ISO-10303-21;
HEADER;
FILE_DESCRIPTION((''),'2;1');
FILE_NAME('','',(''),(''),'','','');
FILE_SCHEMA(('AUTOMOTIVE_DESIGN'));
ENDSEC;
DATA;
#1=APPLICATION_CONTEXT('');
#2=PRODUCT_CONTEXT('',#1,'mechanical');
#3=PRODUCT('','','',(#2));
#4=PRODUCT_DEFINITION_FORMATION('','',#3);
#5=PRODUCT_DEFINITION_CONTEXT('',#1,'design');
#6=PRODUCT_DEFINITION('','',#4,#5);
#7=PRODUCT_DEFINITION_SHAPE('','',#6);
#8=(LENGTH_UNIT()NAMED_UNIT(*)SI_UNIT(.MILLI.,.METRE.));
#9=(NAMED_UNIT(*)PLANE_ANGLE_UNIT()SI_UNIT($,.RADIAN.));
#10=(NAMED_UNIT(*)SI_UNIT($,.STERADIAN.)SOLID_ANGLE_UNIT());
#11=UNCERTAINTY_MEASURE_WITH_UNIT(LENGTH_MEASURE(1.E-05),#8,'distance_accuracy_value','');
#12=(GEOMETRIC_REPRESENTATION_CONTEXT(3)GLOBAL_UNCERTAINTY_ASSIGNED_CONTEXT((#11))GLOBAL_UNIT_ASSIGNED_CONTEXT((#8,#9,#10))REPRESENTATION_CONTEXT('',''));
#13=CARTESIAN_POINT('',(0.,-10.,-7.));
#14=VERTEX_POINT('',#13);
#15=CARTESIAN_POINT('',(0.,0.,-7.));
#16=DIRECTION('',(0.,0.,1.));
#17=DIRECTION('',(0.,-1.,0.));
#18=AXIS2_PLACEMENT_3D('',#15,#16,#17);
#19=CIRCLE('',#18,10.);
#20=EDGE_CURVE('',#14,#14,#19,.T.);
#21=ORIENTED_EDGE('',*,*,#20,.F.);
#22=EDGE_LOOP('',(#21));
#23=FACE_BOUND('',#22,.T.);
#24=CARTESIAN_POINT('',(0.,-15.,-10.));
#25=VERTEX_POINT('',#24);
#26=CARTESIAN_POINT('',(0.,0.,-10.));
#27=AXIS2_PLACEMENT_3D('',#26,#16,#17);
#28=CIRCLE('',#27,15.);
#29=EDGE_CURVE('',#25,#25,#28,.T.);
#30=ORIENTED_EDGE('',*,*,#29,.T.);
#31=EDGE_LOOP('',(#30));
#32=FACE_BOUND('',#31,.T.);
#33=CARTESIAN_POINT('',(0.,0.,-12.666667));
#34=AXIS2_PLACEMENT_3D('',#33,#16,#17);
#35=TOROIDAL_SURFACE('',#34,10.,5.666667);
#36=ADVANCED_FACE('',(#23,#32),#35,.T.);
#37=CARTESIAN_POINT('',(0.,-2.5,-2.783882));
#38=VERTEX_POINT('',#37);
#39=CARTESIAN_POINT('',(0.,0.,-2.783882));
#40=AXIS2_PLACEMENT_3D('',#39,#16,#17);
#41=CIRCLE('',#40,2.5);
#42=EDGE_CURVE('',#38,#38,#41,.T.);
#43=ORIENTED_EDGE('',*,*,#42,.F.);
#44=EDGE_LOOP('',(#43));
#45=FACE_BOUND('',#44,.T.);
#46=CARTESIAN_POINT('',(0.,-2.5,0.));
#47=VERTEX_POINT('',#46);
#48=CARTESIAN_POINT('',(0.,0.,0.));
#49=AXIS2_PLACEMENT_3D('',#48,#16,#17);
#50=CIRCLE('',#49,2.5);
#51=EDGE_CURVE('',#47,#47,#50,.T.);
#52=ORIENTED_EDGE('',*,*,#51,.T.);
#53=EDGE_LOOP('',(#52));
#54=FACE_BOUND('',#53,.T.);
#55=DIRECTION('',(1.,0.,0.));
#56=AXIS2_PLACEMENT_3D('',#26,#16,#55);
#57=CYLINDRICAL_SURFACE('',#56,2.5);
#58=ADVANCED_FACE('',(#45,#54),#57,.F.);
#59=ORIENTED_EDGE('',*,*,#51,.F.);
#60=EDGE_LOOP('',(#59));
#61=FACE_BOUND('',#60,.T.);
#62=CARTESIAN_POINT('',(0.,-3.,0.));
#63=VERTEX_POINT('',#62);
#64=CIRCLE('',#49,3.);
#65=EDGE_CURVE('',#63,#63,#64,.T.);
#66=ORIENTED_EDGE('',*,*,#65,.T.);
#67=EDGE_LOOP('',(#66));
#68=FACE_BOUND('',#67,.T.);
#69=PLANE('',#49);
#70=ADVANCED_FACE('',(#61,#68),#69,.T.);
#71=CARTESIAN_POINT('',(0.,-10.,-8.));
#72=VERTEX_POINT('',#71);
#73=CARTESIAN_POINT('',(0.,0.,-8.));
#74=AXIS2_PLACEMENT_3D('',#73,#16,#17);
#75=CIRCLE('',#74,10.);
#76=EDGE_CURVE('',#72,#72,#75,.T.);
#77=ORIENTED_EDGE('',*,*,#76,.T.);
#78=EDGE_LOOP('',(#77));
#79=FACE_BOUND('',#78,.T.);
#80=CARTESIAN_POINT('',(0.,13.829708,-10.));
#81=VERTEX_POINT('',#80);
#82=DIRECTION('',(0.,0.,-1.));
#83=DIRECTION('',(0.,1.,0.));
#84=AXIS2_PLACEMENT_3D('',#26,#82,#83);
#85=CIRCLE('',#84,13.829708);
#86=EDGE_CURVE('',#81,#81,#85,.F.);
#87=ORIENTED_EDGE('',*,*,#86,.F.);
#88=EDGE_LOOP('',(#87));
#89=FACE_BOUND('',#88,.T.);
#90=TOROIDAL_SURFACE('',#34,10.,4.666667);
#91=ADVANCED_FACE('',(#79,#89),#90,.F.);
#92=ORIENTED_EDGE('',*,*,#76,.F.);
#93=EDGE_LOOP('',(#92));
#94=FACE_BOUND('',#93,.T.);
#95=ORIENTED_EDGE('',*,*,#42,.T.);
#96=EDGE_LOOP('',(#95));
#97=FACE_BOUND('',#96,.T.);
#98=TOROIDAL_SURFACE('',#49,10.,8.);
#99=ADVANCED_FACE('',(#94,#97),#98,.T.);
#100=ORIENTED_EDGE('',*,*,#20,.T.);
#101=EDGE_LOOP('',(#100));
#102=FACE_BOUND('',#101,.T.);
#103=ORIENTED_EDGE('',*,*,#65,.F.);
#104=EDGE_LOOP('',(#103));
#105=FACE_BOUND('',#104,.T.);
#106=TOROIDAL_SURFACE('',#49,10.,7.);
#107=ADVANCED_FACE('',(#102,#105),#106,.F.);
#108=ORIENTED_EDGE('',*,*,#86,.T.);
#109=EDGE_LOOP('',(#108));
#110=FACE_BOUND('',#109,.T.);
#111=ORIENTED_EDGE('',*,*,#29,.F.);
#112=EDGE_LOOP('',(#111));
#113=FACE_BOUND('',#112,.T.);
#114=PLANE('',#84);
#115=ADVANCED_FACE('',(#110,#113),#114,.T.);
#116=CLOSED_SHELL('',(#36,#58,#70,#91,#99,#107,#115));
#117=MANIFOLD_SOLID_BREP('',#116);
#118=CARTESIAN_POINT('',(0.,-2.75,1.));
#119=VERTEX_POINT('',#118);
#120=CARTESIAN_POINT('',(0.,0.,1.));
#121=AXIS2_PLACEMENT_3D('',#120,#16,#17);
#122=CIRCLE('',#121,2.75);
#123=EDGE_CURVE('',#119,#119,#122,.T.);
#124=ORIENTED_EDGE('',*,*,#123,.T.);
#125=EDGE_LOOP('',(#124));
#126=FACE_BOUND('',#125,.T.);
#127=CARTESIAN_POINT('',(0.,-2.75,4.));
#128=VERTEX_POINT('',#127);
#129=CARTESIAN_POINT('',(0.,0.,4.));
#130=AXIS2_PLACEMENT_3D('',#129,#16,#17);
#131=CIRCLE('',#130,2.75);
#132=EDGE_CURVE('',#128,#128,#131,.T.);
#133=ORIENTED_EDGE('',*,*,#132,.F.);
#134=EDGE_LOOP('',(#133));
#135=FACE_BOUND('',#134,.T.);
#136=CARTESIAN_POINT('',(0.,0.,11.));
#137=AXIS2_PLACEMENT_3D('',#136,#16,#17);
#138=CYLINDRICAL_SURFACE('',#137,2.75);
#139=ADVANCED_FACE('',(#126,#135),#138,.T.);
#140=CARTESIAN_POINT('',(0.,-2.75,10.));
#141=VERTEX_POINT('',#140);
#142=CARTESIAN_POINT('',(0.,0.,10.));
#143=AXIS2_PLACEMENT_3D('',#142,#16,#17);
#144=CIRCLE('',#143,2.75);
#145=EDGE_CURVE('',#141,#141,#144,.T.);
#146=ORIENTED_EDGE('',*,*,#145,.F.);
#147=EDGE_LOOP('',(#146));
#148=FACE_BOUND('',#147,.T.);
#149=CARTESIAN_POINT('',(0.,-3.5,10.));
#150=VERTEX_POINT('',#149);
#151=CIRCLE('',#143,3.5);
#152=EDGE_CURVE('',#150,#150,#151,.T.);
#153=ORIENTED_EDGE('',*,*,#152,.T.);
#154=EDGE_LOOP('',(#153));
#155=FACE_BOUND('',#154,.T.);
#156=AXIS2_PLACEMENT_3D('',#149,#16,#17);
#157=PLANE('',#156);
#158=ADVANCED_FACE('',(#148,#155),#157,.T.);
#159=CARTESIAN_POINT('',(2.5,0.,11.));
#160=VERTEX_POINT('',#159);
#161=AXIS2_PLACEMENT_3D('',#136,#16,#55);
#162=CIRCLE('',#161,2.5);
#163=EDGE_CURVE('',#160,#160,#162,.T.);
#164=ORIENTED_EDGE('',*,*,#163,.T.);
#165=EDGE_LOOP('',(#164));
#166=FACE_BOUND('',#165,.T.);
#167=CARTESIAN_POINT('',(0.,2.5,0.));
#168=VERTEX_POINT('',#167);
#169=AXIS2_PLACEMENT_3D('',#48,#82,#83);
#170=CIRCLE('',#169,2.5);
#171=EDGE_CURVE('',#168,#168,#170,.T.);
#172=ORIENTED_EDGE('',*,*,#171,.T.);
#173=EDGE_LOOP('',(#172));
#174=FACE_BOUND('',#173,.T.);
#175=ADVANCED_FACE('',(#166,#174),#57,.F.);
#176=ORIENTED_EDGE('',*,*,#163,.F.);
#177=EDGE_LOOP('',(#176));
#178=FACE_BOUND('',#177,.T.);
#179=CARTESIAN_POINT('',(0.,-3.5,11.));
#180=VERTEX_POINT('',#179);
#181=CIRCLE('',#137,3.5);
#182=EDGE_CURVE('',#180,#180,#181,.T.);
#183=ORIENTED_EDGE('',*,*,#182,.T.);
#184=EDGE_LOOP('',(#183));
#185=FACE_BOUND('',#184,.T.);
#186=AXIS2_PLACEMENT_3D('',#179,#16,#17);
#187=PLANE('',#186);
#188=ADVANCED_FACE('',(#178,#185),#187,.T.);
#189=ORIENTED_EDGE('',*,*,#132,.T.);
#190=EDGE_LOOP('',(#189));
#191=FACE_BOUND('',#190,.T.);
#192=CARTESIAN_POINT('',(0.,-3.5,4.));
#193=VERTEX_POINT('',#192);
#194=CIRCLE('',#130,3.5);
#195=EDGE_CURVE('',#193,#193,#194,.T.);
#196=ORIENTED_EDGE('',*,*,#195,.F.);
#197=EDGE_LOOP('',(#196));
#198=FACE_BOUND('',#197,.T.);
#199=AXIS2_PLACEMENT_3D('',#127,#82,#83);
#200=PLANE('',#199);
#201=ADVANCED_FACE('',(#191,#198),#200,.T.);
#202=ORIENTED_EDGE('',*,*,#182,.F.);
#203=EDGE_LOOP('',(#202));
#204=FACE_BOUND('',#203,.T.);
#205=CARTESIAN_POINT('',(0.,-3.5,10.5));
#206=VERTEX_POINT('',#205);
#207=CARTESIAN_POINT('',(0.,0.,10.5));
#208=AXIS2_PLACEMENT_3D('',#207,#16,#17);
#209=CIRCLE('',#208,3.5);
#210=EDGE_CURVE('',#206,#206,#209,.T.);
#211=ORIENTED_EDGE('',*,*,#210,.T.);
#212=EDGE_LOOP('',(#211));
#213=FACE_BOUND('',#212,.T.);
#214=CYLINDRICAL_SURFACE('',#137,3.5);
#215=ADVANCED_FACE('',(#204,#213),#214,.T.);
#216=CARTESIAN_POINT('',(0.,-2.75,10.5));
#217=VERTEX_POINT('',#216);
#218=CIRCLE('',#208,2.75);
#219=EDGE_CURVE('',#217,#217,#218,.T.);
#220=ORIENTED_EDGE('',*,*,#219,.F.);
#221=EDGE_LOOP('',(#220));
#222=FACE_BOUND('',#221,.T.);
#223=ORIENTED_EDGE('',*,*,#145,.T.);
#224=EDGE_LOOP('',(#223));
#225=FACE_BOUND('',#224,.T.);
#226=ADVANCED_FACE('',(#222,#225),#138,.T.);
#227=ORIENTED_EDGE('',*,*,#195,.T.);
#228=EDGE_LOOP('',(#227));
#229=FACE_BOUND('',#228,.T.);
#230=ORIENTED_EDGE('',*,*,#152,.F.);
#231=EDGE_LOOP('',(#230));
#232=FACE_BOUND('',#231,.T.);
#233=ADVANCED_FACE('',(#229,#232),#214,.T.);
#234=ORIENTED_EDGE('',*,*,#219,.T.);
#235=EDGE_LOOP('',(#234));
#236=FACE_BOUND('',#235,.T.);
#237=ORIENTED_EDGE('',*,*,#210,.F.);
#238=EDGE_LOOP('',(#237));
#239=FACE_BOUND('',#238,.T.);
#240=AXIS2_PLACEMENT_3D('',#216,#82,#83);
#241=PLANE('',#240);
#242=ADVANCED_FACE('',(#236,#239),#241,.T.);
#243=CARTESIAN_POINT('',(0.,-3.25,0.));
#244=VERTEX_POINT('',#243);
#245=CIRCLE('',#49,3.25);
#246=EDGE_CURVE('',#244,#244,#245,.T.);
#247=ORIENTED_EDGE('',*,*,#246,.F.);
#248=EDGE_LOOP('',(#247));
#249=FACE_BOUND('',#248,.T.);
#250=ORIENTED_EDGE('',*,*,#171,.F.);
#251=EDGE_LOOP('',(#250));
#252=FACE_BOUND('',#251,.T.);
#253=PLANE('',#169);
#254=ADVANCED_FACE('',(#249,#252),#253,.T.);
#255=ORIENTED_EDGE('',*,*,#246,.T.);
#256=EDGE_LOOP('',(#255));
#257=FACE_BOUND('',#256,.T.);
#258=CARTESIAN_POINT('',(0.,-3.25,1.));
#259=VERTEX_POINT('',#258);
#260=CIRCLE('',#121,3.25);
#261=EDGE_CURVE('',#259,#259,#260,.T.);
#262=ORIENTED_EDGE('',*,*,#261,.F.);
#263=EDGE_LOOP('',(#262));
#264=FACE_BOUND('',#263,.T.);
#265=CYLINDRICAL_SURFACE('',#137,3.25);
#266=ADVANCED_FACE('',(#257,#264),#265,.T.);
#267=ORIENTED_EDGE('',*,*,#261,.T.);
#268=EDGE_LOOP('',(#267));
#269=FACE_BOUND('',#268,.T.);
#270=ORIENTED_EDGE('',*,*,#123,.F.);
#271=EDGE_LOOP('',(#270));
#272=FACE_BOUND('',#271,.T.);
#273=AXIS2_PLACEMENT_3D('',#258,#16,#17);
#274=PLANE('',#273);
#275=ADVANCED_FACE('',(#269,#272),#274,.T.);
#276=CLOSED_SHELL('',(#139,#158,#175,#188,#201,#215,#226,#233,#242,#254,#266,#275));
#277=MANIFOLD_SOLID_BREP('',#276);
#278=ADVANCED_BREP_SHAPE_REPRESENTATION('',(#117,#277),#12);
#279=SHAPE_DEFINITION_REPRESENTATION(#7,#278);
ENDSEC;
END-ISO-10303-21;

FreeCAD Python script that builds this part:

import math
import FreeCAD as App
import Part
import Sketcher
Q = App.Units.Quantity


def faces_at(feature, points):
    """Names of the faces that lie closest to the given points."""
    faces = feature.Shape.Faces
    near = lambda p: min(range(len(faces)), key=lambda i: faces[i].distToShape(Part.Vertex(*p))[0])
    return sorted({f"Face{near(p) + 1}" for p in points})

doc = App.newDocument("Part")
body = doc.addObject("PartDesign::Body", "Body")

sketch1 = doc.addObject("Sketcher::SketchObject", "Sketch")
body.addObject(sketch1)
sketch1.AttachmentSupport = (doc.YZ_Plane, [""])
sketch1.MapMode = "FlatFace"
sketch1.addGeometry(Part.LineSegment(App.Vector(-15, -10, 0), App.Vector(0, -10, 0)), False)
sketch1.addGeometry(Part.LineSegment(App.Vector(0, -10, 0), App.Vector(0, 0, 0)), False)
sketch1.addGeometry(Part.LineSegment(App.Vector(0, 0, 0), App.Vector(-3, 0, 0)), False)
sketch1.addGeometry(Part.ArcOfCircle(Part.Circle(App.Vector(-10, 0, 0), App.Vector(0, 0, 1), 7), math.radians(-90), math.radians(0)), False)
sketch1.addGeometry(Part.ArcOfCircle(Part.Circle(App.Vector(-10, -12.7, 0), App.Vector(0, 0, 1), 5.7), math.radians(90), math.radians(152)), False)
sketch1.addConstraint(Sketcher.Constraint("Coincident", 0, 2, 1, 1))
sketch1.addConstraint(Sketcher.Constraint("Coincident", 1, 2, 2, 1))
sketch1.addConstraint(Sketcher.Constraint("Coincident", 2, 2, 3, 2))
sketch1.addConstraint(Sketcher.Constraint("Tangent", 3, 1, 4, 1))
sketch1.addConstraint(Sketcher.Constraint("Coincident", 4, 2, 0, 1))
sketch1.addConstraint(Sketcher.Constraint("Horizontal", 0))
sketch1.addConstraint(Sketcher.Constraint("Vertical", 1))
sketch1.addConstraint(Sketcher.Constraint("Horizontal", 2))
sketch1.addConstraint(Sketcher.Constraint("Coincident", 1, 2, -1, 1))
sketch1.addConstraint(Sketcher.Constraint("PointOnObject", 3, 3, -1))
sketch1.addConstraint(Sketcher.Constraint("Vertical", 3, 3, 4, 3))
sketch1.addConstraint(Sketcher.Constraint("Radius", 3, Q("7 mm")))
sketch1.addConstraint(Sketcher.Constraint("DistanceX", 0, 1, 0, 2, Q("15 mm")))
sketch1.addConstraint(Sketcher.Constraint("DistanceX", 2, 2, 2, 1, Q("3 mm")))
sketch1.addConstraint(Sketcher.Constraint("DistanceY", 1, 1, 1, 2, Q("10 mm")))
revolution = doc.addObject("PartDesign::Revolution", "Revolution")
body.addObject(revolution)
revolution.Profile = sketch1
revolution.ReferenceAxis = (sketch1, ["V_Axis"])
revolution.Angle = 360
doc.recompute()

thickness = doc.addObject("PartDesign::Thickness", "Thickness")
body.addObject(thickness)
thickness.Base = (revolution, faces_at(revolution, [(0, 0, -10)]))
thickness.Value = 1
thickness.Reversed = True
thickness.Join = "Intersection"
body2 = doc.addObject("PartDesign::Body", "Body001")

sketch2 = doc.addObject("Sketcher::SketchObject", "Sketch001")
body2.addObject(sketch2)
sketch2.AttachmentSupport = (doc.getObject("YZ_Plane001"), [""])
sketch2.MapMode = "FlatFace"
sketch2.addGeometry(Part.LineSegment(App.Vector(-3.2, 0, 0), App.Vector(0, 0, 0)), False)
sketch2.addGeometry(Part.LineSegment(App.Vector(0, 0, 0), App.Vector(0, 11, 0)), False)
sketch2.addGeometry(Part.LineSegment(App.Vector(0, 11, 0), App.Vector(-3.5, 11, 0)), False)
sketch2.addGeometry(Part.LineSegment(App.Vector(-3.5, 11, 0), App.Vector(-3.5, 10.5, 0)), False)
sketch2.addGeometry(Part.LineSegment(App.Vector(-3.5, 10.5, 0), App.Vector(-2.8, 10.5, 0)), False)
sketch2.addGeometry(Part.LineSegment(App.Vector(-2.8, 10.5, 0), App.Vector(-2.8, 10, 0)), False)
sketch2.addGeometry(Part.LineSegment(App.Vector(-2.8, 10, 0), App.Vector(-3.5, 10, 0)), False)
sketch2.addGeometry(Part.LineSegment(App.Vector(-3.5, 10, 0), App.Vector(-3.5, 4, 0)), False)
sketch2.addGeometry(Part.LineSegment(App.Vector(-3.5, 4, 0), App.Vector(-2.8, 4, 0)), False)
sketch2.addGeometry(Part.LineSegment(App.Vector(-2.8, 4, 0), App.Vector(-2.8, 1, 0)), False)
sketch2.addGeometry(Part.LineSegment(App.Vector(-2.8, 1, 0), App.Vector(-3.2, 1, 0)), False)
sketch2.addGeometry(Part.LineSegment(App.Vector(-3.2, 1, 0), App.Vector(-3.2, 0, 0)), False)
sketch2.addConstraint(Sketcher.Constraint("Coincident", 0, 2, 1, 1))
sketch2.addConstraint(Sketcher.Constraint("Coincident", 1, 2, 2, 1))
sketch2.addConstraint(Sketcher.Constraint("Coincident", 2, 2, 3, 1))
sketch2.addConstraint(Sketcher.Constraint("Coincident", 3, 2, 4, 1))
sketch2.addConstraint(Sketcher.Constraint("Coincident", 4, 2, 5, 1))
sketch2.addConstraint(Sketcher.Constraint("Coincident", 5, 2, 6, 1))
sketch2.addConstraint(Sketcher.Constraint("Coincident", 6, 2, 7, 1))
sketch2.addConstraint(Sketcher.Constraint("Coincident", 7, 2, 8, 1))
sketch2.addConstraint(Sketcher.Constraint("Coincident", 8, 2, 9, 1))
sketch2.addConstraint(Sketcher.Constraint("Coincident", 9, 2, 10, 1))
sketch2.addConstraint(Sketcher.Constraint("Coincident", 10, 2, 11, 1))
sketch2.addConstraint(Sketcher.Constraint("Coincident", 11, 2, 0, 1))
sketch2.addConstraint(Sketcher.Constraint("Horizontal", 0))
sketch2.addConstraint(Sketcher.Constraint("Vertical", 1))
sketch2.addConstraint(Sketcher.Constraint("Horizontal", 2))
sketch2.addConstraint(Sketcher.Constraint("Vertical", 3))
sketch2.addConstraint(Sketcher.Constraint("Horizontal", 4))
sketch2.addConstraint(Sketcher.Constraint("Vertical", 5))
sketch2.addConstraint(Sketcher.Constraint("Horizontal", 6))
sketch2.addConstraint(Sketcher.Constraint("Vertical", 7))
sketch2.addConstraint(Sketcher.Constraint("Horizontal", 8))
sketch2.addConstraint(Sketcher.Constraint("Vertical", 9))
sketch2.addConstraint(Sketcher.Constraint("Horizontal", 10))
sketch2.addConstraint(Sketcher.Constraint("Vertical", 11))
sketch2.addConstraint(Sketcher.Constraint("Coincident", 0, 2, -1, 1))
sketch2.addConstraint(Sketcher.Constraint("Vertical", 3, 2, 6, 2))
sketch2.addConstraint(Sketcher.Constraint("Vertical", 5, 2, 8, 2))
sketch2.addConstraint(Sketcher.Constraint("Equal", 10, 3))
sketch2.addConstraint(Sketcher.Constraint("Equal", 3, 5))
sketch2.addConstraint(Sketcher.Constraint("DistanceY", 1, 1, 1, 2, Q("11 mm")))
sketch2.addConstraint(Sketcher.Constraint("DistanceY", 7, 2, 7, 1, Q("6 mm")))
sketch2.addConstraint(Sketcher.Constraint("DistanceY", 9, 2, 9, 1, Q("3 mm")))
sketch2.addConstraint(Sketcher.Constraint("DistanceY", 11, 2, 11, 1, Q("1 mm")))
sketch2.addConstraint(Sketcher.Constraint("DistanceX", 2, 2, 2, 1, Q("3.5 mm")))
sketch2.addConstraint(Sketcher.Constraint("DistanceX", 0, 1, 0, 2, Q("3.25 mm")))
revolution2 = doc.addObject("PartDesign::Revolution", "Revolution001")
body2.addObject(revolution2)
revolution2.Profile = sketch2
revolution2.ReferenceAxis = (sketch2, ["V_Axis"])
revolution2.Angle = 360
body3 = doc.addObject("PartDesign::Body", "Body002")

sketch3 = doc.addObject("Sketcher::SketchObject", "Sketch002")
body3.addObject(sketch3)
sketch3.AttachmentSupport = (doc.getObject("XY_Plane002"), [""])
sketch3.MapMode = "FlatFace"
sketch3.addGeometry(Part.Circle(App.Vector(0, 0, 0), App.Vector(0, 0, 1), 2.5), False)
sketch3.addConstraint(Sketcher.Constraint("Coincident", 0, 3, -1, 1))
sketch3.addConstraint(Sketcher.Constraint("Diameter", 0, Q("5 mm")))
pad1 = doc.addObject("PartDesign::Pad", "Pad")
body3.addObject(pad1)
pad1.Profile = sketch3
pad1.Type = "TwoLengths"
pad1.Length = 24.895606
pad1.Length2 = 24.895606
doc.recompute()

body4 = doc.addObject("PartDesign::Body", "Body003")
body4.BaseFeature = body3
boolean = doc.addObject("PartDesign::Boolean", "Boolean")
body.addObject(boolean)
boolean.Type = "Cut"
boolean.addObjects([body4])
doc.recompute()

boolean2 = doc.addObject("PartDesign::Boolean", "Boolean001")
body2.addObject(boolean2)
boolean2.Type = "Cut"
boolean2.addObjects([body3])

doc.recompute()
